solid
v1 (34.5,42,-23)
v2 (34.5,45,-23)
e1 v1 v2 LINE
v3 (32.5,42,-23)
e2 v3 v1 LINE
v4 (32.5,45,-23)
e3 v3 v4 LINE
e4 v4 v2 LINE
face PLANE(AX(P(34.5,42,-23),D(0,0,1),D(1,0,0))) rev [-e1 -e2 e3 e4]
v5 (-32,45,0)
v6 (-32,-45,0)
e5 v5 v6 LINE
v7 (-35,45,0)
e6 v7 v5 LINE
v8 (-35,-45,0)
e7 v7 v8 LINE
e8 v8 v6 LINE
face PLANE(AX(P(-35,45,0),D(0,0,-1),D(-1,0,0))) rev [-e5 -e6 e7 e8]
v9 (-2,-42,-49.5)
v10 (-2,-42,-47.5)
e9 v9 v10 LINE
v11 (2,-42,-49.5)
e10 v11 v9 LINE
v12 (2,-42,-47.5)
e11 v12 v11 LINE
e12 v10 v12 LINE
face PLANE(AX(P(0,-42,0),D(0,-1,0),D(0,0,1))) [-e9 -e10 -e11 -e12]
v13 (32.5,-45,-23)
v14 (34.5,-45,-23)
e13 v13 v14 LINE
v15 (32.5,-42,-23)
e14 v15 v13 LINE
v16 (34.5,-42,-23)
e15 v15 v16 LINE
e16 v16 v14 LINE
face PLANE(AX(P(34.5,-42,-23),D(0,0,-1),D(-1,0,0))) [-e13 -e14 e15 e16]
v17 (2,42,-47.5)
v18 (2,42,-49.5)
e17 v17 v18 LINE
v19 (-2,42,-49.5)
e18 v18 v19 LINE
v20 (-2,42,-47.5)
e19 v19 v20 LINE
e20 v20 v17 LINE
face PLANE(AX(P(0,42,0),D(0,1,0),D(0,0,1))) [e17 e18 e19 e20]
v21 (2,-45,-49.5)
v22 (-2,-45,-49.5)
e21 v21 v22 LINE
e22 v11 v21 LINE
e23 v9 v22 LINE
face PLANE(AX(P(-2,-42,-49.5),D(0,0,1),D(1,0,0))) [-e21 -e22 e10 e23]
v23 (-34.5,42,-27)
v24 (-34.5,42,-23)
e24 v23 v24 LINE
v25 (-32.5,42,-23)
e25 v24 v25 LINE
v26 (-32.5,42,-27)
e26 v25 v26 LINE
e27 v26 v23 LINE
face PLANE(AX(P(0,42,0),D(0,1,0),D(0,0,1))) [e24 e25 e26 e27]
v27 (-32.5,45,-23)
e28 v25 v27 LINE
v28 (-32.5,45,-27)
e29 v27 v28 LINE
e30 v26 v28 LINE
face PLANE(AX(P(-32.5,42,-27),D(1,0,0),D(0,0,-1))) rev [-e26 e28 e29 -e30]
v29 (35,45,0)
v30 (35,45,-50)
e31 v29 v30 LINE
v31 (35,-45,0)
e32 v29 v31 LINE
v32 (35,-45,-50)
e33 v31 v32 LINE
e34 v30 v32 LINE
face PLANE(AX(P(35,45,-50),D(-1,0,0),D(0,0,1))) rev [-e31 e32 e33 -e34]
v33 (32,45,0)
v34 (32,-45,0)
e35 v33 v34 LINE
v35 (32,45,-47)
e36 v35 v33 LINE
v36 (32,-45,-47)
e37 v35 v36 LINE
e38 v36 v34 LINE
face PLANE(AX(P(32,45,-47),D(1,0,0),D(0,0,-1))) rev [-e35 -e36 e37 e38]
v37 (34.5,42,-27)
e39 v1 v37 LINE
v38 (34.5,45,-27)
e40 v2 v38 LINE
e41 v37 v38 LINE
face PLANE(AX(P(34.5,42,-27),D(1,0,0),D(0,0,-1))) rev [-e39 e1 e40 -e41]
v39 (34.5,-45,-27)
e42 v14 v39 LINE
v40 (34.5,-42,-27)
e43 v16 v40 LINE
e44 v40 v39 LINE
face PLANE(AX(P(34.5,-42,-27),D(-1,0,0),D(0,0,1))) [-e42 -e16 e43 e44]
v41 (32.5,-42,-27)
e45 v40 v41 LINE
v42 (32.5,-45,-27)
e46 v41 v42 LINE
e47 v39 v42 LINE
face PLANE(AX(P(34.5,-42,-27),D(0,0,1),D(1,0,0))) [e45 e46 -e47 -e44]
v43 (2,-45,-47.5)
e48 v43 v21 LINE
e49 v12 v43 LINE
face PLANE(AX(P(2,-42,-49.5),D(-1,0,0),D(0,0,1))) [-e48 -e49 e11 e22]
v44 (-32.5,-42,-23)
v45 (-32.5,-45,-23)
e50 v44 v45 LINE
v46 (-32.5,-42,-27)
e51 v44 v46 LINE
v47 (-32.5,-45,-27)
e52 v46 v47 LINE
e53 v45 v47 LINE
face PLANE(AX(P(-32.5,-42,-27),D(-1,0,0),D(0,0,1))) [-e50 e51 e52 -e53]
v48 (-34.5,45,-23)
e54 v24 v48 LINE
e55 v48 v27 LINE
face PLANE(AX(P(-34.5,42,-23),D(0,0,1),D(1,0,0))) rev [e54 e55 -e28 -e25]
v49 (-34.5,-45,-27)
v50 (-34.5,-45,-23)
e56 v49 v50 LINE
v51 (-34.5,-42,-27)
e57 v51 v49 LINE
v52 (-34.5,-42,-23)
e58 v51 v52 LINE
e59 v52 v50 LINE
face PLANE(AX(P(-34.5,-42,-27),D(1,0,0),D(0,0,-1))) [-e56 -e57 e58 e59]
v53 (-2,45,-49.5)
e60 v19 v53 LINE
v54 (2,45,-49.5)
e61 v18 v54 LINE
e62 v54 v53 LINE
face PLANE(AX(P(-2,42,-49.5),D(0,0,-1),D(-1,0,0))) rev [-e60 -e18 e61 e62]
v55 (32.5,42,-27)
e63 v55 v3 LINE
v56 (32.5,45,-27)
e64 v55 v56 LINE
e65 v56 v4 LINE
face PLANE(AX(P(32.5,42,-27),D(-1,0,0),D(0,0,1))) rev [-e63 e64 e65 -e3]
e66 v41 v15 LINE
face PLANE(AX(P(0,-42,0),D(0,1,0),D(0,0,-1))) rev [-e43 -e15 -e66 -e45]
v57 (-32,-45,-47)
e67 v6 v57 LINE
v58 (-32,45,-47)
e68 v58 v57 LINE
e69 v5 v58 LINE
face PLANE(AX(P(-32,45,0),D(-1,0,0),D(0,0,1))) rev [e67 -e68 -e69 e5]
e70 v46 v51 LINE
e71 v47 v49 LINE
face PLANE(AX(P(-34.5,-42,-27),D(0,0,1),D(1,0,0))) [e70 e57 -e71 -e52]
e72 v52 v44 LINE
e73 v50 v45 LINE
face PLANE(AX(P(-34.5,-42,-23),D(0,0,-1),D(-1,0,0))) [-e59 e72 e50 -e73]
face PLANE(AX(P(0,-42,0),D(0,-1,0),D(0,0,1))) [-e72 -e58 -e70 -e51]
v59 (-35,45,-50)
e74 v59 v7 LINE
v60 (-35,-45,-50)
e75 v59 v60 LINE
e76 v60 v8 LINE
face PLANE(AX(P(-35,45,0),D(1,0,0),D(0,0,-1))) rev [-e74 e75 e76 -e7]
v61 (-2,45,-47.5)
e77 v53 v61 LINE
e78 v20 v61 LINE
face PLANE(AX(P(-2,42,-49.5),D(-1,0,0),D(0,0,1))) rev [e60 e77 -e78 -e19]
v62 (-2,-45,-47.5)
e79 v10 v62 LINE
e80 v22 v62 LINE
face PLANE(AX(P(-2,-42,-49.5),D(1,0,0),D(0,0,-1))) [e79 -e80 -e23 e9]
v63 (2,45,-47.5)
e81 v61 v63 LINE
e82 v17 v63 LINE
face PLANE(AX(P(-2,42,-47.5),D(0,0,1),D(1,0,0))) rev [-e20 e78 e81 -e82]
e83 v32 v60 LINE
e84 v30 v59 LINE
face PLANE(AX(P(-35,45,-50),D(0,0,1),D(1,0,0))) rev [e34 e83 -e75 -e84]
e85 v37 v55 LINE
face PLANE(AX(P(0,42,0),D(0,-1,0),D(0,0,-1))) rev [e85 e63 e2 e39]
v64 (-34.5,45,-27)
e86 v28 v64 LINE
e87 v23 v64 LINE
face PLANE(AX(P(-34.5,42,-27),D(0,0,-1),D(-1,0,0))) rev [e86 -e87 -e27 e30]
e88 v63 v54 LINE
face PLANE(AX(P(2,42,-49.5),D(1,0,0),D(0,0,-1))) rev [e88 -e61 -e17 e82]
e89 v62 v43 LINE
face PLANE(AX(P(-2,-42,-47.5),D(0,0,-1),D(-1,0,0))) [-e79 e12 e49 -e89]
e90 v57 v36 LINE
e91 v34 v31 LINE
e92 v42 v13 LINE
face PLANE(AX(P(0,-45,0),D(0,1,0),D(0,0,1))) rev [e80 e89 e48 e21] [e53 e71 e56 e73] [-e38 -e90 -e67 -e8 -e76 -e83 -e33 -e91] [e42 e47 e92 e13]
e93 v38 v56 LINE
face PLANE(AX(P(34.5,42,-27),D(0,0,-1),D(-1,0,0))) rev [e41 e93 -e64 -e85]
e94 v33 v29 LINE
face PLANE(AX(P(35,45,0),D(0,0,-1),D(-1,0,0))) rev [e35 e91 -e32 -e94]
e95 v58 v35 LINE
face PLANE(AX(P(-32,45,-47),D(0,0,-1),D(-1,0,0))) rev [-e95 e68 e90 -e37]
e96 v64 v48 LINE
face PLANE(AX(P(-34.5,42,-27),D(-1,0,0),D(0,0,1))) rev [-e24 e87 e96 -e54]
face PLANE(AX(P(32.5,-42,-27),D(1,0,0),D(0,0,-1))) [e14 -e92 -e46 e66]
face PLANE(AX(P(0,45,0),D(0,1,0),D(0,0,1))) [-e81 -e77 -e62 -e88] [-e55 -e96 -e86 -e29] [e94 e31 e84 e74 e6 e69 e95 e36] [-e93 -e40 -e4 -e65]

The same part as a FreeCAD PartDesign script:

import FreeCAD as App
import Part
import Sketcher

doc = App.newDocument("Part")
body = doc.addObject("PartDesign::Body", "Body")

sketch1 = body.newObject("Sketcher::SketchObject", "Sketch")
sketch1.AttachmentSupport = (doc.getObject("XZ_Plane"), [""])
sketch1.MapMode = "FlatFace"
sketch1.addGeometry(Part.LineSegment(App.Vector(-35, -50, 0), App.Vector(-35, 0, 0)), False)
sketch1.addGeometry(Part.LineSegment(App.Vector(-35, 0, 0), App.Vector(-32, 0, 0)), False)
sketch1.addGeometry(Part.LineSegment(App.Vector(-32, 0, 0), App.Vector(-32, -47, 0)), False)
sketch1.addGeometry(Part.LineSegment(App.Vector(-32, -47, 0), App.Vector(32, -47, 0)), False)
sketch1.addGeometry(Part.LineSegment(App.Vector(32, -47, 0), App.Vector(32, 0, 0)), False)
sketch1.addGeometry(Part.LineSegment(App.Vector(32, 0, 0), App.Vector(35, 0, 0)), False)
sketch1.addGeometry(Part.LineSegment(App.Vector(35, 0, 0), App.Vector(35, -50, 0)), False)
sketch1.addGeometry(Part.LineSegment(App.Vector(35, -50, 0), App.Vector(-35, -50, 0)), False)
sketch1.addConstraint(Sketcher.Constraint("Coincident", 0, 2, 1, 1))
sketch1.addConstraint(Sketcher.Constraint("Coincident", 1, 2, 2, 1))
sketch1.addConstraint(Sketcher.Constraint("Coincident", 2, 2, 3, 1))
sketch1.addConstraint(Sketcher.Constraint("Coincident", 3, 2, 4, 1))
sketch1.addConstraint(Sketcher.Constraint("Coincident", 4, 2, 5, 1))
sketch1.addConstraint(Sketcher.Constraint("Coincident", 5, 2, 6, 1))
sketch1.addConstraint(Sketcher.Constraint("Coincident", 6, 2, 7, 1))
sketch1.addConstraint(Sketcher.Constraint("Coincident", 7, 2, 0, 1))
sketch1.addConstraint(Sketcher.Constraint("Vertical", 0))
sketch1.addConstraint(Sketcher.Constraint("Horizontal", 1))
sketch1.addConstraint(Sketcher.Constraint("Vertical", 2))
sketch1.addConstraint(Sketcher.Constraint("Horizontal", 3))
sketch1.addConstraint(Sketcher.Constraint("Vertical", 4))
sketch1.addConstraint(Sketcher.Constraint("Horizontal", 5))
sketch1.addConstraint(Sketcher.Constraint("Vertical", 6))
sketch1.addConstraint(Sketcher.Constraint("Horizontal", 7))
sketch1.addConstraint(Sketcher.Constraint("Symmetric", 1, 2, 4, 2, -1, 1))
sketch1.addConstraint(Sketcher.Constraint("Symmetric", 0, 2, 5, 2, -2))
sketch1.addConstraint(Sketcher.Constraint("DistanceX", 1, 1, 1, 2, 3.0))
sketch1.addConstraint(Sketcher.Constraint("DistanceX", 3, 1, 3, 2, 64.0))
sketch1.addConstraint(Sketcher.Constraint("DistanceY", 0, 1, 0, 2, 50.0))
sketch1.addConstraint(Sketcher.Constraint("DistanceY", 2, 2, 2, 1, 47.0))
pad1 = body.newObject("PartDesign::Pad", "Pad")
pad1.Profile = sketch1
pad1.Length = 90
pad1.Midplane = True

sketch2 = body.newObject("Sketcher::SketchObject", "Sketch001")
sketch2.AttachmentSupport = (doc.getObject("XZ_Plane"), [""])
sketch2.MapMode = "FlatFace"
sketch2.AttachmentOffset = App.Placement(App.Vector(0, 0, -45), App.Rotation())
sketch2.addGeometry(Part.LineSegment(App.Vector(32.5, -27, 0), App.Vector(32.5, -23, 0)), False)
sketch2.addGeometry(Part.LineSegment(App.Vector(32.5, -23, 0), App.Vector(34.5, -23, 0)), False)
sketch2.addGeometry(Part.LineSegment(App.Vector(34.5, -23, 0), App.Vector(34.5, -27, 0)), False)
sketch2.addGeometry(Part.LineSegment(App.Vector(34.5, -27, 0), App.Vector(32.5, -27, 0)), False)
sketch2.addGeometry(Part.LineSegment(App.Vector(-34.5, -27, 0), App.Vector(-34.5, -23, 0)), False)
sketch2.addGeometry(Part.LineSegment(App.Vector(-34.5, -23, 0), App.Vector(-32.5, -23, 0)), False)
sketch2.addGeometry(Part.LineSegment(App.Vector(-32.5, -23, 0), App.Vector(-32.5, -27, 0)), False)
sketch2.addGeometry(Part.LineSegment(App.Vector(-32.5, -27, 0), App.Vector(-34.5, -27, 0)), False)
sketch2.addGeometry(Part.LineSegment(App.Vector(-2, -49.5, 0), App.Vector(-2, -47.5, 0)), False)
sketch2.addGeometry(Part.LineSegment(App.Vector(-2, -47.5, 0), App.Vector(2, -47.5, 0)), False)
sketch2.addGeometry(Part.LineSegment(App.Vector(2, -47.5, 0), App.Vector(2, -49.5, 0)), False)
sketch2.addGeometry(Part.LineSegment(App.Vector(2, -49.5, 0), App.Vector(-2, -49.5, 0)), False)
sketch2.addConstraint(Sketcher.Constraint("Coincident", 0, 2, 1, 1))
sketch2.addConstraint(Sketcher.Constraint("Coincident", 1, 2, 2, 1))
sketch2.addConstraint(Sketcher.Constraint("Coincident", 2, 2, 3, 1))
sketch2.addConstraint(Sketcher.Constraint("Coincident", 3, 2, 0, 1))
sketch2.addConstraint(Sketcher.Constraint("Coincident", 4, 2, 5, 1))
sketch2.addConstraint(Sketcher.Constraint("Coincident", 5, 2, 6, 1))
sketch2.addConstraint(Sketcher.Constraint("Coincident", 6, 2, 7, 1))
sketch2.addConstraint(Sketcher.Constraint("Coincident", 7, 2, 4, 1))
sketch2.addConstraint(Sketcher.Constraint("Coincident", 8, 2, 9, 1))
sketch2.addConstraint(Sketcher.Constraint("Coincident", 9, 2, 10, 1))
sketch2.addConstraint(Sketcher.Constraint("Coincident", 10, 2, 11, 1))
sketch2.addConstraint(Sketcher.Constraint("Coincident", 11, 2, 8, 1))
sketch2.addConstraint(Sketcher.Constraint("Vertical", 0))
sketch2.addConstraint(Sketcher.Constraint("Horizontal", 1))
sketch2.addConstraint(Sketcher.Constraint("Vertical", 2))
sketch2.addConstraint(Sketcher.Constraint("Horizontal", 3))
sketch2.addConstraint(Sketcher.Constraint("Vertical", 4))
sketch2.addConstraint(Sketcher.Constraint("Horizontal", 5))
sketch2.addConstraint(Sketcher.Constraint("Vertical", 6))
sketch2.addConstraint(Sketcher.Constraint("Horizontal", 7))
sketch2.addConstraint(Sketcher.Constraint("Vertical", 8))
sketch2.addConstraint(Sketcher.Constraint("Horizontal", 9))
sketch2.addConstraint(Sketcher.Constraint("Vertical", 10))
sketch2.addConstraint(Sketcher.Constraint("Horizontal", 11))
sketch2.addConstraint(Sketcher.Constraint("Symmetric", 1, 2, 4, 2, -2))
sketch2.addConstraint(Sketcher.Constraint("Symmetric", 3, 2, 6, 2, -2))
sketch2.addConstraint(Sketcher.Constraint("Equal", 11, 0))
sketch2.addConstraint(Sketcher.Constraint("Equal", 7, 8))
sketch2.addConstraint(Sketcher.Constraint("DistanceX", 1, 1, 1, 2, 2.0))
sketch2.addConstraint(Sketcher.Constraint("DistanceX", 9, 1, 9, 2, 4.0))
sketch2.addConstraint(Sketcher.Constraint("DistanceY", 0, 2, -1, 1, 23.0))
sketch2.addConstraint(Sketcher.Constraint("DistanceX", 8, 2, -1, 1, 2.0))
sketch2.addConstraint(Sketcher.Constraint("DistanceX", 4, 2, 0, 2, 67.0))
sketch2.addConstraint(Sketcher.Constraint("DistanceY", 8, 2, -1, 1, 47.5))
pocket1 = body.newObject("PartDesign::Pocket", "Pocket")
pocket1.Profile = sketch2
pocket1.Length = 3
pocket1.Reversed = True
doc.recompute()

mirrored = body.newObject("PartDesign::Mirrored", "Mirrored")
mirrored.Originals = [pocket1]
mirrored.MirrorPlane = (doc.getObject("XZ_Plane"), [""])
body.Tip = mirrored

doc.recompute()
